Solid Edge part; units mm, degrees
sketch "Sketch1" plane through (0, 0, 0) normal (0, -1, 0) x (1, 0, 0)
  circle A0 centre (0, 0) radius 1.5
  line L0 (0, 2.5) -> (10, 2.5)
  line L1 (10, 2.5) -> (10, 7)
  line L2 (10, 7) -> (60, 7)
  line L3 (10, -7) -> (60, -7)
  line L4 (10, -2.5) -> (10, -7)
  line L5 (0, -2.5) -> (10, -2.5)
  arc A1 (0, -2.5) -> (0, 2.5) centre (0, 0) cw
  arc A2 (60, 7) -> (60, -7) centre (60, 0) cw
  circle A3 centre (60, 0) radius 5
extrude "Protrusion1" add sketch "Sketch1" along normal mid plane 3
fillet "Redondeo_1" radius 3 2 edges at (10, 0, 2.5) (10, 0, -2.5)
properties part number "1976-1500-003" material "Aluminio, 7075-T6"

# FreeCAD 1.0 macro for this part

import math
import FreeCAD as App
import Part
import Sketcher

V = App.Vector


def edges_at(feature, points):
    """Names of the edges that pass closest to the given points."""
    edges = feature.Shape.Edges
    near = lambda p: min(range(len(edges)), key=lambda i: edges[i].distToShape(Part.Vertex(*p))[0])
    return sorted({f"Edge{near(p) + 1}" for p in points})

doc = App.newDocument("Part")
body = doc.addObject("PartDesign::Body", "Body")

# Sketch on XZ plane
sketch1 = body.newObject("Sketcher::SketchObject", "Sketch")
sketch1.AttachmentSupport = (doc.getObject("XZ_Plane"), [""])
sketch1.MapMode = "FlatFace"
sketch1.addGeometry(Part.LineSegment(V(10, 2.5, 0), V(0, 2.5, 0)), False)
sketch1.addGeometry(Part.ArcOfCircle(Part.Circle(V(0, 0, 0), V(0, 0, 1), 2.5), math.radians(90), math.radians(270)), False)
sketch1.addGeometry(Part.LineSegment(V(0, -2.5, 0), V(10, -2.5, 0)), False)
sketch1.addGeometry(Part.LineSegment(V(10, -2.5, 0), V(10, -7, 0)), False)
sketch1.addGeometry(Part.LineSegment(V(10, -7, 0), V(60, -7, 0)), False)
sketch1.addGeometry(Part.ArcOfCircle(Part.Circle(V(60, 0, 0), V(0, 0, 1), 7), math.radians(-90), math.radians(90)), False)
sketch1.addGeometry(Part.LineSegment(V(60, 7, 0), V(10, 7, 0)), False)
sketch1.addGeometry(Part.LineSegment(V(10, 7, 0), V(10, 2.5, 0)), False)
sketch1.addGeometry(Part.Circle(V(0, 0, 0), V(0, 0, 1), 1.5), False)
sketch1.addGeometry(Part.Circle(V(60, 0, 0), V(0, 0, 1), 5), False)
sketch1.addConstraint(Sketcher.Constraint("Tangent", 0, 2, 1, 1))
sketch1.addConstraint(Sketcher.Constraint("Tangent", 1, 2, 2, 1))
sketch1.addConstraint(Sketcher.Constraint("Coincident", 2, 2, 3, 1))
sketch1.addConstraint(Sketcher.Constraint("Coincident", 3, 2, 4, 1))
sketch1.addConstraint(Sketcher.Constraint("Tangent", 4, 2, 5, 1))
sketch1.addConstraint(Sketcher.Constraint("Tangent", 5, 2, 6, 1))
sketch1.addConstraint(Sketcher.Constraint("Coincident", 6, 2, 7, 1))
sketch1.addConstraint(Sketcher.Constraint("Coincident", 7, 2, 0, 1))
sketch1.addConstraint(Sketcher.Constraint("Horizontal", 0))
sketch1.addConstraint(Sketcher.Constraint("Horizontal", 2))
sketch1.addConstraint(Sketcher.Constraint("Vertical", 3))
sketch1.addConstraint(Sketcher.Constraint("Horizontal", 4))
sketch1.addConstraint(Sketcher.Constraint("Horizontal", 6))
sketch1.addConstraint(Sketcher.Constraint("Vertical", 7))
sketch1.addConstraint(Sketcher.Constraint("Coincident", 1, 3, -1, 1))
sketch1.addConstraint(Sketcher.Constraint("Coincident", 8, 3, -1, 1))
sketch1.addConstraint(Sketcher.Constraint("Coincident", 9, 3, 5, 3))
sketch1.addConstraint(Sketcher.Constraint("Symmetric", 3, 2, 6, 2, -1))
sketch1.addConstraint(Sketcher.Constraint("Diameter", 8, 3.0))
sketch1.addConstraint(Sketcher.Constraint("Diameter", 9, 10.0))
sketch1.addConstraint(Sketcher.Constraint("Radius", 5, 7.0))
sketch1.addConstraint(Sketcher.Constraint("Radius", 1, 2.5))
sketch1.addConstraint(Sketcher.Constraint("DistanceX", 0, 2, 0, 1, 10.0))
sketch1.addConstraint(Sketcher.Constraint("DistanceX", 4, 1, 4, 2, 50.0))
pad1 = body.newObject("PartDesign::Pad", "Pad")
pad1.Profile = sketch1
pad1.Length = 3
pad1.Midplane = True
doc.recompute()

fillet = body.newObject("PartDesign::Fillet", "Fillet")
fillet.Base = (pad1, edges_at(pad1, [(10, 0, 2.5), (10, 0, -2.5)]))
fillet.Radius = 3

doc.recompute()
